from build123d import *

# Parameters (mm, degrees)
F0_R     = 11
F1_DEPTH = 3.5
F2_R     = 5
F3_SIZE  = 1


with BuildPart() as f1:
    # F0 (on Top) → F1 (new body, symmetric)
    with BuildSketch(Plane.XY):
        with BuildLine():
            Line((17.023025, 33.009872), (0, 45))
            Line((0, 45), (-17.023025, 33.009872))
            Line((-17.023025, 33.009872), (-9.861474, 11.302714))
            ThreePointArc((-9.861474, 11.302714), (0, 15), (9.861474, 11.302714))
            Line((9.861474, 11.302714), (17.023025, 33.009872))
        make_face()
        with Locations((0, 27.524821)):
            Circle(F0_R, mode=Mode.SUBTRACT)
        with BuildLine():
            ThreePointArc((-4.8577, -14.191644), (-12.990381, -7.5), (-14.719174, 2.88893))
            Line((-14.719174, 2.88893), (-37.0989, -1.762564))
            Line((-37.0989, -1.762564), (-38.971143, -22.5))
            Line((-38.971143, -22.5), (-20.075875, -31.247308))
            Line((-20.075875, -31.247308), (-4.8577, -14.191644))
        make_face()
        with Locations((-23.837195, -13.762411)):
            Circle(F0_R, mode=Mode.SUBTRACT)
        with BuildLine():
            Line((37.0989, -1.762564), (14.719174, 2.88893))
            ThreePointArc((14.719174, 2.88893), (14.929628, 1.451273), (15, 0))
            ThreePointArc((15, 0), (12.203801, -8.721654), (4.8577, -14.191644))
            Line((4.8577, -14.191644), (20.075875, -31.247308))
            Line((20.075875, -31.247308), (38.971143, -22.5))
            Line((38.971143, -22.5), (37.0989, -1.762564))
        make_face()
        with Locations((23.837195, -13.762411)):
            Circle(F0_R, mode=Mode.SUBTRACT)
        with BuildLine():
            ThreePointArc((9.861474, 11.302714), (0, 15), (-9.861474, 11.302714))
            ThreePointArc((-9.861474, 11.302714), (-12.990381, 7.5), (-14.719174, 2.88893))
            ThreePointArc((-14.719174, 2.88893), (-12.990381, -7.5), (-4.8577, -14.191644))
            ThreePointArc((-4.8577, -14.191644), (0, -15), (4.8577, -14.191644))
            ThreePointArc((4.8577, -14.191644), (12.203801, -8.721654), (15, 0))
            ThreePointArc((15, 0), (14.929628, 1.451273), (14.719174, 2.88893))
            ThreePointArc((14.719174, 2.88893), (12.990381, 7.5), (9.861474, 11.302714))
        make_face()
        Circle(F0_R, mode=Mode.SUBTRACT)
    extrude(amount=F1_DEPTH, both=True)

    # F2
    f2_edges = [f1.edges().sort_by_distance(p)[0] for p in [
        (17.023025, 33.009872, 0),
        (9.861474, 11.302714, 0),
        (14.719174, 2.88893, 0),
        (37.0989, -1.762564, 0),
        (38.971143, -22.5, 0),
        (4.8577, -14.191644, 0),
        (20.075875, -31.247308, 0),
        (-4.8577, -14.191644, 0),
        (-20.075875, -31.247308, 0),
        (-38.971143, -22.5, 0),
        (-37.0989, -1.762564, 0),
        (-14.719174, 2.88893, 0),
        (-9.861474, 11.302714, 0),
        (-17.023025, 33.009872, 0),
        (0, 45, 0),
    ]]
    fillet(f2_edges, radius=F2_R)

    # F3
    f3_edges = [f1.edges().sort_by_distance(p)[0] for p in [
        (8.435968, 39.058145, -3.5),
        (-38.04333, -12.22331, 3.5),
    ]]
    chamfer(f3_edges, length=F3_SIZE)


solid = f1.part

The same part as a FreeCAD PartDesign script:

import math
import FreeCAD as App
import Part
import Sketcher
Q = App.Units.Quantity


def edges_at(feature, points):
    """Names of the edges that pass closest to the given points."""
    edges = feature.Shape.Edges
    near = lambda p: min(range(len(edges)), key=lambda i: edges[i].distToShape(Part.Vertex(*p))[0])
    return sorted({f"Edge{near(p) + 1}" for p in points})

doc = App.newDocument("Part")
body = doc.addObject("PartDesign::Body", "Body")

# Sketch on XY plane
sketch1 = doc.addObject("Sketcher::SketchObject", "Sketch")
body.addObject(sketch1)
sketch1.AttachmentSupport = (doc.XY_Plane, [""])
sketch1.MapMode = "FlatFace"
sketch1.addGeometry(Part.LineSegment(App.Vector(17, 33, 0), App.Vector(0, 45, 0)), False)
sketch1.addGeometry(Part.LineSegment(App.Vector(0, 45, 0), App.Vector(-17, 33, 0)), False)
sketch1.addGeometry(Part.LineSegment(App.Vector(-17, 33, 0), App.Vector(-10, 11, 0)), False)
sketch1.addGeometry(Part.ArcOfCircle(Part.Circle(App.Vector(0, 0, 0), App.Vector(0, 0, 1), 15), math.radians(131), math.radians(169)), False)
sketch1.addGeometry(Part.LineSegment(App.Vector(-15, 3, 0), App.Vector(-37, -2, 0)), False)
sketch1.addGeometry(Part.LineSegment(App.Vector(-37, -2, 0), App.Vector(-39, -22, 0)), False)
sketch1.addGeometry(Part.LineSegment(App.Vector(-39, -22, 0), App.Vector(-20, -31, 0)), False)
sketch1.addGeometry(Part.LineSegment(App.Vector(-20, -31, 0), App.Vector(-5, -14, 0)), False)
sketch1.addGeometry(Part.ArcOfCircle(Part.Circle(App.Vector(0, 0, 0), App.Vector(0, 0, 1), 15), math.radians(-109), math.radians(-71)), False)
sketch1.addGeometry(Part.LineSegment(App.Vector(5, -14, 0), App.Vector(20, -31, 0)), False)
sketch1.addGeometry(Part.LineSegment(App.Vector(20, -31, 0), App.Vector(39, -22, 0)), False)
sketch1.addGeometry(Part.LineSegment(App.Vector(39, -22, 0), App.Vector(37, -2, 0)), False)
sketch1.addGeometry(Part.LineSegment(App.Vector(37, -2, 0), App.Vector(15, 3, 0)), False)
sketch1.addGeometry(Part.ArcOfCircle(Part.Circle(App.Vector(0, 0, 0), App.Vector(0, 0, 1), 15), math.radians(11), math.radians(49)), False)
sketch1.addGeometry(Part.LineSegment(App.Vector(10, 11, 0), App.Vector(17, 33, 0)), False)
sketch1.addGeometry(Part.Circle(App.Vector(-24, -14, 0), App.Vector(0, 0, 1), 11), False)
sketch1.addGeometry(Part.Circle(App.Vector(24, -14, 0), App.Vector(0, 0, 1), 11), False)
sketch1.addGeometry(Part.Circle(App.Vector(0, 0, 0), App.Vector(0, 0, 1), 11), False)
sketch1.addGeometry(Part.Circle(App.Vector(0, 28, 0), App.Vector(0, 0, 1), 11), False)
sketch1.addConstraint(Sketcher.Constraint("Coincident", 0, 2, 1, 1))
sketch1.addConstraint(Sketcher.Constraint("Coincident", 1, 2, 2, 1))
sketch1.addConstraint(Sketcher.Constraint("Coincident", 2, 2, 3, 1))
sketch1.addConstraint(Sketcher.Constraint("Coincident", 3, 2, 4, 1))
sketch1.addConstraint(Sketcher.Constraint("Coincident", 4, 2, 5, 1))
sketch1.addConstraint(Sketcher.Constraint("Coincident", 5, 2, 6, 1))
sketch1.addConstraint(Sketcher.Constraint("Coincident", 6, 2, 7, 1))
sketch1.addConstraint(Sketcher.Constraint("Coincident", 7, 2, 8, 1))
sketch1.addConstraint(Sketcher.Constraint("Coincident", 8, 2, 9, 1))
sketch1.addConstraint(Sketcher.Constraint("Coincident", 9, 2, 10, 1))
sketch1.addConstraint(Sketcher.Constraint("Coincident", 10, 2, 11, 1))
sketch1.addConstraint(Sketcher.Constraint("Coincident", 11, 2, 12, 1))
sketch1.addConstraint(Sketcher.Constraint("Coincident", 12, 2, 13, 1))
sketch1.addConstraint(Sketcher.Constraint("Coincident", 13, 2, 14, 1))
sketch1.addConstraint(Sketcher.Constraint("Coincident", 14, 2, 0, 1))
sketch1.addConstraint(Sketcher.Constraint("Coincident", 3, 3, -1, 1))
sketch1.addConstraint(Sketcher.Constraint("Coincident", 8, 3, -1, 1))
sketch1.addConstraint(Sketcher.Constraint("Coincident", 13, 3, -1, 1))
sketch1.addConstraint(Sketcher.Constraint("Coincident", 17, 3, -1, 1))
sketch1.addConstraint(Sketcher.Constraint("Equal", 3, 8))
sketch1.addConstraint(Sketcher.Constraint("Equal", 8, 13))
sketch1.addConstraint(Sketcher.Constraint("Equal", 15, 16))
sketch1.addConstraint(Sketcher.Constraint("Equal", 16, 17))
sketch1.addConstraint(Sketcher.Constraint("Equal", 17, 18))
sketch1.addConstraint(Sketcher.Constraint("Symmetric", 15, 3, 16, 3, -2))
sketch1.addConstraint(Sketcher.Constraint("Symmetric", 6, 2, 9, 2, -2))
sketch1.addConstraint(Sketcher.Constraint("Symmetric", 5, 2, 10, 2, -2))
sketch1.addConstraint(Sketcher.Constraint("Symmetric", 4, 2, 11, 2, -2))
sketch1.addConstraint(Sketcher.Constraint("Symmetric", 1, 2, 14, 2, -2))
sketch1.addConstraint(Sketcher.Constraint("PointOnObject", 18, 3, -2))
sketch1.addConstraint(Sketcher.Constraint("PointOnObject", 0, 2, -2))
sketch1.addConstraint(Sketcher.Constraint("Horizontal", 7, 2, 8, 2))
sketch1.addConstraint(Sketcher.Constraint("Horizontal", 3, 2, 12, 2))
sketch1.addConstraint(Sketcher.Constraint("Horizontal", 2, 2, 13, 2))
sketch1.addConstraint(Sketcher.Constraint("Equal", 2, 4))
sketch1.addConstraint(Sketcher.Constraint("Equal", 1, 5))
sketch1.addConstraint(Sketcher.Constraint("Equal", 5, 6))
sketch1.addConstraint(Sketcher.Constraint("Equal", 4, 7))
sketch1.addConstraint(Sketcher.Constraint("Diameter", 15, Q("22 mm")))
sketch1.addConstraint(Sketcher.Constraint("DistanceY", -1, 1, 0, 2, Q("45 mm")))
sketch1.addConstraint(Sketcher.Constraint("DistanceY", 5, 2, -1, 1, Q("22.5 mm")))
sketch1.addConstraint(Sketcher.Constraint("Radius", 3, Q("15.000005 mm")))
sketch1.addConstraint(Sketcher.Constraint("DistanceX", 4, 2, -1, 1, Q("37.0989 mm")))
sketch1.addConstraint(Sketcher.Constraint("DistanceX", 7, 2, -1, 1, Q("4.8577 mm")))
sketch1.addConstraint(Sketcher.Constraint("DistanceX", 15, 3, 3, 3, Q("23.8372 mm")))
sketch1.addConstraint(Sketcher.Constraint("DistanceX", 3, 2, 2, 2, Q("4.8577 mm")))
sketch1.addConstraint(Sketcher.Constraint("DistanceX", 6, 2, 3, 2, Q("5.356701 mm")))
sketch1.addConstraint(Sketcher.Constraint("Distance", 0, Q("20.821781 mm")))
sketch1.addConstraint(Sketcher.Constraint("Distance", 4, Q("22.858008 mm")))
sketch1.addConstraint(Sketcher.Constraint("DistanceY", 15, 3, -1, 1, Q("13.762411 mm")))
sketch1.addConstraint(Sketcher.Constraint("DistanceY", -1, 1, 18, 3, Q("27.524821 mm")))
pad1 = doc.addObject("PartDesign::Pad", "Pad")
body.addObject(pad1)
pad1.Profile = sketch1
pad1.Length = 7
pad1.Midplane = True
doc.recompute()

fillet = doc.addObject("PartDesign::Fillet", "Fillet")
body.addObject(fillet)
fillet.Base = (pad1, edges_at(pad1, [
    (17.023, 33.01, 0),
    (9.861, 11.303, 0),
    (14.719, 2.889, 0),
    (37.099, -1.763, 0),
    (38.971, -22.5, 0),
    (4.858, -14.192, 0),
    (20.076, -31.247, 0),
    (-4.858, -14.192, 0),
    (-20.076, -31.247, 0),
    (-38.971, -22.5, 0),
    (-37.099, -1.763, 0),
    (-14.719, 2.889, 0),
    (-9.861, 11.303, 0),
    (-17.023, 33.01, 0),
    (0, 45, 0),
]))
fillet.Radius = 5
doc.recompute()

chamfer = doc.addObject("PartDesign::Chamfer", "Chamfer")
body.addObject(chamfer)
chamfer.Base = (fillet, edges_at(fillet, [(8.436, 39.058, -3.5), (-38.043, -12.223, 3.5)]))
chamfer.Size = 1

doc.recompute()
